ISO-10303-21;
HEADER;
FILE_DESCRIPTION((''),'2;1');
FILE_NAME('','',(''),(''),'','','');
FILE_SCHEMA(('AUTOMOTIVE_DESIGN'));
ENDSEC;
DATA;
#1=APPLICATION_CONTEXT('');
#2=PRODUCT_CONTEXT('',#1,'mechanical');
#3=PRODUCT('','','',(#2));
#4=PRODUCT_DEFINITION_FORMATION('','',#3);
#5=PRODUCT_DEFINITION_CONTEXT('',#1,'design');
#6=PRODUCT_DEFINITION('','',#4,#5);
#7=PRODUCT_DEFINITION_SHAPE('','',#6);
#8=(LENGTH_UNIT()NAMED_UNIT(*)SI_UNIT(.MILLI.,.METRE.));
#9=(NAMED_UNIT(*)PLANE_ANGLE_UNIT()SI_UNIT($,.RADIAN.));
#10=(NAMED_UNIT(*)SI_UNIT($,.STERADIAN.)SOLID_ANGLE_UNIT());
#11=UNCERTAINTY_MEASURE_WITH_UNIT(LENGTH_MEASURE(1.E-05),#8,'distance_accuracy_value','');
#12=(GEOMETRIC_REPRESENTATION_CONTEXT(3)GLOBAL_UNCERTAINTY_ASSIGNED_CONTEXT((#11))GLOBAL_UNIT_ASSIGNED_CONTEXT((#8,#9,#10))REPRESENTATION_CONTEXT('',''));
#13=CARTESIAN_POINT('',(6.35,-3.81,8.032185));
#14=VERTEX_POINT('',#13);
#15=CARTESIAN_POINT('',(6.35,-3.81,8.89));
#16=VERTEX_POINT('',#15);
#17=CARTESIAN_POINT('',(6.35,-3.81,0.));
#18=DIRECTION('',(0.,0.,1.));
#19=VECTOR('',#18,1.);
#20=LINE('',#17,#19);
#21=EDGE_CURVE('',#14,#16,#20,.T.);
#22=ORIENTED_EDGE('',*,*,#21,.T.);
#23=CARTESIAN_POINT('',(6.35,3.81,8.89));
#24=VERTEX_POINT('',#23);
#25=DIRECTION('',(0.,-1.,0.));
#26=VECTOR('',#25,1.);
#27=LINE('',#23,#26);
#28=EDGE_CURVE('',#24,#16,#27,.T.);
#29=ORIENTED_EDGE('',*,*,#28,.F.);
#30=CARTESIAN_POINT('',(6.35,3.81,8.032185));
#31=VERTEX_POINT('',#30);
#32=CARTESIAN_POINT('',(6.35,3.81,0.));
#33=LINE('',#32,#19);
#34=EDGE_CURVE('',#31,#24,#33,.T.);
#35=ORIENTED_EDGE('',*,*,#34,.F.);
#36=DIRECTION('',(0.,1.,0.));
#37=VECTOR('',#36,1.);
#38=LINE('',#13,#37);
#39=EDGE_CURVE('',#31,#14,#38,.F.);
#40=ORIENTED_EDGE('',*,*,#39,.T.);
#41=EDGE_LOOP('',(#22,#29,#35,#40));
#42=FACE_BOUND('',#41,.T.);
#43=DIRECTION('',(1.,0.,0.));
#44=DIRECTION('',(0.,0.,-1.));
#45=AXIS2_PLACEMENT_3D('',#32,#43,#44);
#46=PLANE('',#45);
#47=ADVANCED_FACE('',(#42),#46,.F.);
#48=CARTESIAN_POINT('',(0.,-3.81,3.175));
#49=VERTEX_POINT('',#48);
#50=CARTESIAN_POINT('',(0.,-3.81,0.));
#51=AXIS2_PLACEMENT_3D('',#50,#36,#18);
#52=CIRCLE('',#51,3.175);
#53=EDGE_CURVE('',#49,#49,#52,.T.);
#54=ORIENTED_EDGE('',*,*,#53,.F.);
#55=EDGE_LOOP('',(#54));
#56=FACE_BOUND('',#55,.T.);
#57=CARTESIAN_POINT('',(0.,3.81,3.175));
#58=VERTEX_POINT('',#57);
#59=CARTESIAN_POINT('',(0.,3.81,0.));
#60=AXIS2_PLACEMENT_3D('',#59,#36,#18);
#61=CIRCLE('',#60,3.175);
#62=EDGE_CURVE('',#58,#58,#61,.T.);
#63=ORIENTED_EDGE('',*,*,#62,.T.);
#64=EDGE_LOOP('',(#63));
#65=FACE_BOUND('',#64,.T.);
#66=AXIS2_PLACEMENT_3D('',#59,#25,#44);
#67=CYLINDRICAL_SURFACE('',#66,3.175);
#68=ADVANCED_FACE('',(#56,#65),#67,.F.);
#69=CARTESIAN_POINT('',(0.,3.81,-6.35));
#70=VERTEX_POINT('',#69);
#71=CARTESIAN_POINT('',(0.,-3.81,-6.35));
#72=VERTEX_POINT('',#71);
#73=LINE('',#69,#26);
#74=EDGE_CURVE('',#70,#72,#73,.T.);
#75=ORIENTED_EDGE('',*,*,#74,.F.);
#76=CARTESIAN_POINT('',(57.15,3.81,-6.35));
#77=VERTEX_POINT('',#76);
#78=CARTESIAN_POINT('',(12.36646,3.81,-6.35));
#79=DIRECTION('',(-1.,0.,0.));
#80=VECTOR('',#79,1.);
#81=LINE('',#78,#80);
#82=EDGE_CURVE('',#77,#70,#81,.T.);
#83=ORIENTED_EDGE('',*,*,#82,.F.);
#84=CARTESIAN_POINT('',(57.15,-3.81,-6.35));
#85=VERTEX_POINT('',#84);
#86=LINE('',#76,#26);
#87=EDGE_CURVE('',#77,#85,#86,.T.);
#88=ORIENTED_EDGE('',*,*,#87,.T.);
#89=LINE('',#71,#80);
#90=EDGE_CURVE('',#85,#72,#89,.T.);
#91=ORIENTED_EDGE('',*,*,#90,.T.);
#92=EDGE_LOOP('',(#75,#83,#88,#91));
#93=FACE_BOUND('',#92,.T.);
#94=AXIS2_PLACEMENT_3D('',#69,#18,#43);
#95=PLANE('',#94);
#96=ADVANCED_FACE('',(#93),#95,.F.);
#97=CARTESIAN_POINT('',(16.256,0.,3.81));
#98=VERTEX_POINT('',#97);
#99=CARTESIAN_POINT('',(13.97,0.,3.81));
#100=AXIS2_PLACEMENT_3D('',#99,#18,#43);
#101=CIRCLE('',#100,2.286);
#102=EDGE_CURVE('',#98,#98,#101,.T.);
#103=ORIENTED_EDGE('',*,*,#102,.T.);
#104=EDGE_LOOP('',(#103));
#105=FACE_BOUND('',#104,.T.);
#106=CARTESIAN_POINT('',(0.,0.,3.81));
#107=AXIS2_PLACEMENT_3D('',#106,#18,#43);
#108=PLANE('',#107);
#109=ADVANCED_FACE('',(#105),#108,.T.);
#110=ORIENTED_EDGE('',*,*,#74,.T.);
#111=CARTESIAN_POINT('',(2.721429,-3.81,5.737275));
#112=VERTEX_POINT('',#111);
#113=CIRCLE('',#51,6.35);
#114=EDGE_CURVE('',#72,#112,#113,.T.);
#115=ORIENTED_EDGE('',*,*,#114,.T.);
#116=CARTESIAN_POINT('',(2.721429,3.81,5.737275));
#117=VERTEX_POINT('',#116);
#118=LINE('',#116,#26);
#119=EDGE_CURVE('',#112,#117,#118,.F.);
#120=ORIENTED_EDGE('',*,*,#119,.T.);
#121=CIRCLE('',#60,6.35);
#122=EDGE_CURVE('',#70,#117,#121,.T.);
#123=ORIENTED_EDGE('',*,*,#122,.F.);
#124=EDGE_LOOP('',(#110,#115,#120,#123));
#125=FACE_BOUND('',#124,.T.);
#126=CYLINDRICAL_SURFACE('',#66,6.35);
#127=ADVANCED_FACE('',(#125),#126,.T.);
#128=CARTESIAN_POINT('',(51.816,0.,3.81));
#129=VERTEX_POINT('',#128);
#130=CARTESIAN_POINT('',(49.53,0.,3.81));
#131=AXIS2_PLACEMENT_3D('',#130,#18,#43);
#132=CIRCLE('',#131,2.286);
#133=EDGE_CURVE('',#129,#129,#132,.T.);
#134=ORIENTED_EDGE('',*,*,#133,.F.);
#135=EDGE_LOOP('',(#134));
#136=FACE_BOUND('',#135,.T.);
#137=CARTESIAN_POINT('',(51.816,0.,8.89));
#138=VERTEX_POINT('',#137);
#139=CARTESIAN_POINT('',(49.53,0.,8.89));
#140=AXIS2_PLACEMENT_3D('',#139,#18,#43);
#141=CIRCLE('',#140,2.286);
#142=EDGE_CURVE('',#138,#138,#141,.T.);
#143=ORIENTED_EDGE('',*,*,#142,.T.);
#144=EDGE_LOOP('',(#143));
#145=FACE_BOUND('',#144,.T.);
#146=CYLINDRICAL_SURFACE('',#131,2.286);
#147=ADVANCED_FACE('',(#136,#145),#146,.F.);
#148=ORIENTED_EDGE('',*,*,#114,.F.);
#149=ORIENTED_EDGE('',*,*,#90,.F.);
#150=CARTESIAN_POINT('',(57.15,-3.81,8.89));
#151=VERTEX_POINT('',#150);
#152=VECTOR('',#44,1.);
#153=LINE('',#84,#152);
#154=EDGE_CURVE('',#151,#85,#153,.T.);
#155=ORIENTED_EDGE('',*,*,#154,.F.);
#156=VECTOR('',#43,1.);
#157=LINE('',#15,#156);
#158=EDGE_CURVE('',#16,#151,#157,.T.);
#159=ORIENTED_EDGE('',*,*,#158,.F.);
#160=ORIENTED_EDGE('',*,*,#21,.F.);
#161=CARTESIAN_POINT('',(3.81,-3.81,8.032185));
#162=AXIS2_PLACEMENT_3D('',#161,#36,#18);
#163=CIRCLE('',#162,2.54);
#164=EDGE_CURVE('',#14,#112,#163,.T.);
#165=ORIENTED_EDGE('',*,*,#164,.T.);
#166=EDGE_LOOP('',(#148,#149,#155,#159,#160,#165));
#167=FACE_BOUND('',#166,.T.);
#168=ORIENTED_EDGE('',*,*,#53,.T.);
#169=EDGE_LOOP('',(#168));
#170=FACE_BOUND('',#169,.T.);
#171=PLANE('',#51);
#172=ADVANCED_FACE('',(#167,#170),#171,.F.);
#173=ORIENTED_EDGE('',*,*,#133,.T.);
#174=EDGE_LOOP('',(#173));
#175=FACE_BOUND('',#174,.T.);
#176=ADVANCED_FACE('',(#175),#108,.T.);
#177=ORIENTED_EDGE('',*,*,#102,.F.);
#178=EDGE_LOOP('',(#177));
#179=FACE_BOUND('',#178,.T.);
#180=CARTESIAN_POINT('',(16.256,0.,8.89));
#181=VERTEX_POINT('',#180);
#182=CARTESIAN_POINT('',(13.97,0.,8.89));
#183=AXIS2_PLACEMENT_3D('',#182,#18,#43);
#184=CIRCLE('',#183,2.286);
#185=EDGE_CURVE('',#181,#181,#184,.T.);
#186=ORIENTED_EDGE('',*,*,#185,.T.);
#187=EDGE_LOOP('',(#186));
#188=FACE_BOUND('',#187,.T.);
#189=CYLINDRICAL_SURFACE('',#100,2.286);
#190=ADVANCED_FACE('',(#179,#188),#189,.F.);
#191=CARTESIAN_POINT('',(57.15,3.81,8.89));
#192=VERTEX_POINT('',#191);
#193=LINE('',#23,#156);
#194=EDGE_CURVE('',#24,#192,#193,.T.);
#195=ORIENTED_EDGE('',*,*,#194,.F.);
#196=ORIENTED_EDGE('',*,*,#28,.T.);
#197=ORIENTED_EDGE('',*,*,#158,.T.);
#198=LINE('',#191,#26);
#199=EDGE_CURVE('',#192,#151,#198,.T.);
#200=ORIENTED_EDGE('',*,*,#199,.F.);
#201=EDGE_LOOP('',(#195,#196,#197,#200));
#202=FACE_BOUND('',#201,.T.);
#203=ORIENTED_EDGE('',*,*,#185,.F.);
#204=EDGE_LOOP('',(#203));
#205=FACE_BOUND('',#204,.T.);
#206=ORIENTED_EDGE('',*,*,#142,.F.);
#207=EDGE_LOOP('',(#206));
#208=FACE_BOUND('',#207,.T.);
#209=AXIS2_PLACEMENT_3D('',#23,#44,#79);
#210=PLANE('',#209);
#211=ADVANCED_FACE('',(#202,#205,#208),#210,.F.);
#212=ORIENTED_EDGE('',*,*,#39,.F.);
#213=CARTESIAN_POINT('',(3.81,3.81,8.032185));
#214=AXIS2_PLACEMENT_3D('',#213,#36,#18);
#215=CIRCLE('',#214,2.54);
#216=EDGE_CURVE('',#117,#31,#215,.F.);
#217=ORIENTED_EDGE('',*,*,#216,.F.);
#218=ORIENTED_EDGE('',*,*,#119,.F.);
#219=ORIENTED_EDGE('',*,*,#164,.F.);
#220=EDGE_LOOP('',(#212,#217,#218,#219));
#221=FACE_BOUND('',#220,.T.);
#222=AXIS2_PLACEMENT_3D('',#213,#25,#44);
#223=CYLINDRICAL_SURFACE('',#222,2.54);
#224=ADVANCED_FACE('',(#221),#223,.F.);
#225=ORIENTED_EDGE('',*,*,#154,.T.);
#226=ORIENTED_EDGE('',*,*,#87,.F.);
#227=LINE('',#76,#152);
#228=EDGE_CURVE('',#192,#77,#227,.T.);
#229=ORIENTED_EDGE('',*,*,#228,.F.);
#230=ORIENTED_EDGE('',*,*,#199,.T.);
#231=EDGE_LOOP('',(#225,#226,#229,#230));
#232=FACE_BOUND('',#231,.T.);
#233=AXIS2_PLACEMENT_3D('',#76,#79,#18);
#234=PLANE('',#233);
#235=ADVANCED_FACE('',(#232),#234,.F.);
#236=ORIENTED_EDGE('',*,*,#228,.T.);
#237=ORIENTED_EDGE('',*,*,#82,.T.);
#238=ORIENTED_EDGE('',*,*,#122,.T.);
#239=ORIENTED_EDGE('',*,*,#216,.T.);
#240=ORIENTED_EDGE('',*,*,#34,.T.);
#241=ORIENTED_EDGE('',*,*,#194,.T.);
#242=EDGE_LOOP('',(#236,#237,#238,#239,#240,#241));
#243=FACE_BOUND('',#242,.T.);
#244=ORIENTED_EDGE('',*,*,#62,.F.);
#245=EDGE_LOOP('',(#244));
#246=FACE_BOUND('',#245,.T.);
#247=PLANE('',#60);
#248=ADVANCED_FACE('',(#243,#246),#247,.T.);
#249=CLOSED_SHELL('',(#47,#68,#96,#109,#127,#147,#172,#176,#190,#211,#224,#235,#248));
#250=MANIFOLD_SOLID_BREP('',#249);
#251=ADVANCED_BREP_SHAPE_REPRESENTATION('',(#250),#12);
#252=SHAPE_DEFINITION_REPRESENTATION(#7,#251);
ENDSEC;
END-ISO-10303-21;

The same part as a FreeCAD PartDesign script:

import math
import FreeCAD as App
import Part
import Sketcher
Q = App.Units.Quantity


def edges_at(feature, points):
    """Names of the edges that pass closest to the given points."""
    edges = feature.Shape.Edges
    near = lambda p: min(range(len(edges)), key=lambda i: edges[i].distToShape(Part.Vertex(*p))[0])
    return sorted({f"Edge{near(p) + 1}" for p in points})

doc = App.newDocument("Part")
body = doc.addObject("PartDesign::Body", "Body")

# Sketch on XZ plane
sketch1 = doc.addObject("Sketcher::SketchObject", "Sketch")
body.addObject(sketch1)
sketch1.AttachmentSupport = (doc.XZ_Plane, [""])
sketch1.MapMode = "FlatFace"
sketch1.addGeometry(Part.LineSegment(App.Vector(57.15, -6.35, 0), App.Vector(0, -6.35, 0)), False)
sketch1.addGeometry(Part.ArcOfCircle(Part.Circle(App.Vector(0, 0, 0), App.Vector(0, 0, 1), 6.35), math.radians(0), math.radians(270)), False)
sketch1.addGeometry(Part.LineSegment(App.Vector(6.35, 0, 0), App.Vector(6.35, 8.89, 0)), False)
sketch1.addGeometry(Part.LineSegment(App.Vector(6.35, 8.89, 0), App.Vector(57.15, 8.89, 0)), False)
sketch1.addGeometry(Part.LineSegment(App.Vector(57.15, 8.89, 0), App.Vector(57.15, -6.35, 0)), False)
sketch1.addGeometry(Part.Circle(App.Vector(0, 0, 0), App.Vector(0, 0, 1), 3.175), False)
sketch1.addConstraint(Sketcher.Constraint("Tangent", 0, 2, 1, 2))
sketch1.addConstraint(Sketcher.Constraint("Tangent", 1, 1, 2, 1))
sketch1.addConstraint(Sketcher.Constraint("Coincident", 2, 2, 3, 1))
sketch1.addConstraint(Sketcher.Constraint("Coincident", 3, 2, 4, 1))
sketch1.addConstraint(Sketcher.Constraint("Coincident", 4, 2, 0, 1))
sketch1.addConstraint(Sketcher.Constraint("Horizontal", 0))
sketch1.addConstraint(Sketcher.Constraint("Vertical", 2))
sketch1.addConstraint(Sketcher.Constraint("Horizontal", 3))
sketch1.addConstraint(Sketcher.Constraint("Vertical", 4))
sketch1.addConstraint(Sketcher.Constraint("Coincident", 1, 3, -1, 1))
sketch1.addConstraint(Sketcher.Constraint("Coincident", 5, 3, -1, 1))
sketch1.addConstraint(Sketcher.Constraint("Diameter", 5, Q("0.25 in")))
sketch1.addConstraint(Sketcher.Constraint("DistanceX", 3, 1, 3, 2, Q("2 in")))
sketch1.addConstraint(Sketcher.Constraint("Radius", 1, Q("0.25 in")))
sketch1.addConstraint(Sketcher.Constraint("DistanceY", 4, 2, 4, 1, Q("0.6 in")))
pad1 = doc.addObject("PartDesign::Pad", "Pad")
body.addObject(pad1)
pad1.Profile = sketch1
pad1.Length = Q("0.3 in")
pad1.Midplane = True
doc.recompute()

fillet = doc.addObject("PartDesign::Fillet", "Fillet")
body.addObject(fillet)
fillet.Base = (pad1, edges_at(pad1, [(6.35, 0, 0)]))
fillet.Radius = Q("0.1 in")

# Sketch on XY plane
sketch2 = doc.addObject("Sketcher::SketchObject", "Sketch001")
body.addObject(sketch2)
sketch2.AttachmentSupport = (doc.XY_Plane, [""])
sketch2.MapMode = "FlatFace"
sketch2.AttachmentOffset = App.Placement(App.Vector(0, 0, 0.35 * 25.4), App.Rotation())
sketch2.addGeometry(Part.Circle(App.Vector(13.97, 0, 0), App.Vector(0, 0, 1), 2.286), False)
sketch2.addGeometry(Part.Circle(App.Vector(49.53, 0, 0), App.Vector(0, 0, 1), 2.286), False)
sketch2.addConstraint(Sketcher.Constraint("Equal", 0, 1))
sketch2.addConstraint(Sketcher.Constraint("PointOnObject", 0, 3, -1))
sketch2.addConstraint(Sketcher.Constraint("PointOnObject", 1, 3, -1))
sketch2.addConstraint(Sketcher.Constraint("Diameter", 0, Q("0.18 in")))
sketch2.addConstraint(Sketcher.Constraint("DistanceX", 0, 3, 1, 3, Q("1.4 in")))
sketch2.addConstraint(Sketcher.Constraint("DistanceX", -1, 1, 0, 3, Q("0.55 in")))
pocket1 = doc.addObject("PartDesign::Pocket", "Pocket")
body.addObject(pocket1)
pocket1.Profile = sketch2
pocket1.Length = Q("0.2 in")

doc.recompute()
